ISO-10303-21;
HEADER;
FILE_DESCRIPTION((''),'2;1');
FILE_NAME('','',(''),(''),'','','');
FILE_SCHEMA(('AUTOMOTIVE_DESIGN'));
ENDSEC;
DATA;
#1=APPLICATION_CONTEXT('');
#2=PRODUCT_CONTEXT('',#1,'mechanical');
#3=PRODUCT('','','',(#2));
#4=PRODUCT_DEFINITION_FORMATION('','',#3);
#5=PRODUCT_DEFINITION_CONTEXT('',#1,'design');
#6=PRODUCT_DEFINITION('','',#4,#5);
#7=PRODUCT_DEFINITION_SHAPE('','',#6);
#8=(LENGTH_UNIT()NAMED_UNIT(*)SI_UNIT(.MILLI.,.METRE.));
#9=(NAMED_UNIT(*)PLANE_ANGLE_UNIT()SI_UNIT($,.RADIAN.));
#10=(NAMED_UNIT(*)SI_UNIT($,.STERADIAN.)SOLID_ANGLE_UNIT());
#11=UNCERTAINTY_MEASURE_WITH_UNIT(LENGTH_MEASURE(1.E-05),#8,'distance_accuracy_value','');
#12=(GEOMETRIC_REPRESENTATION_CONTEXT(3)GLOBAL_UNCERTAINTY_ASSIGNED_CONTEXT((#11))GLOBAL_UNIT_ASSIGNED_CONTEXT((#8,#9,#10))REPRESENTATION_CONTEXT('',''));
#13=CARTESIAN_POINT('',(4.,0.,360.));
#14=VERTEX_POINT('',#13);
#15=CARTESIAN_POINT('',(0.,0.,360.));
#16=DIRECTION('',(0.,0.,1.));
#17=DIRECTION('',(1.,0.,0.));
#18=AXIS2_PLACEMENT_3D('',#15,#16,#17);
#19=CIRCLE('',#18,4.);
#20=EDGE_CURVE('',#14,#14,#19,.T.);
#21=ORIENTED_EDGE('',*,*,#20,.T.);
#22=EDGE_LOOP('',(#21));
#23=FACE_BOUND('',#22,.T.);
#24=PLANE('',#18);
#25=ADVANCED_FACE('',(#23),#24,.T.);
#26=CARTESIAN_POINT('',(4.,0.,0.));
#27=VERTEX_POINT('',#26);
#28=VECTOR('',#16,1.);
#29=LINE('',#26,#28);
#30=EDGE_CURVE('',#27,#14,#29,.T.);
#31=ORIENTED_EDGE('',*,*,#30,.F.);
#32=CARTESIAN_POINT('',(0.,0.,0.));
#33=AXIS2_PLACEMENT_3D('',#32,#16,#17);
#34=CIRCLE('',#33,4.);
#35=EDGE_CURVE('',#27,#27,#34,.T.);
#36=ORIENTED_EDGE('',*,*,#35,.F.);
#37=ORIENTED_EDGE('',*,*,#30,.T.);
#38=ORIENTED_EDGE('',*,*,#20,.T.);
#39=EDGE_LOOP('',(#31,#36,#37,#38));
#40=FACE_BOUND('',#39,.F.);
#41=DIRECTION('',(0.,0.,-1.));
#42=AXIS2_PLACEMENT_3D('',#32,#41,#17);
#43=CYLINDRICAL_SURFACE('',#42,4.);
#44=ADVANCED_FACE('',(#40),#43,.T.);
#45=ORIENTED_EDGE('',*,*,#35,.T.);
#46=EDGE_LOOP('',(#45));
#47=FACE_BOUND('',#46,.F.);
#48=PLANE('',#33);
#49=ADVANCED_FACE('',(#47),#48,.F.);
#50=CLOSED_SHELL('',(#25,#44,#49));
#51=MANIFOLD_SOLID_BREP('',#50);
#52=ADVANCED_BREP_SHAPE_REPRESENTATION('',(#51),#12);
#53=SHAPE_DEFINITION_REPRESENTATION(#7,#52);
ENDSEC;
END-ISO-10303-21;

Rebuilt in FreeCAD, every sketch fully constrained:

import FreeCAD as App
import Part
import Sketcher

V = App.Vector

doc = App.newDocument("Part")
body = doc.addObject("PartDesign::Body", "Body")

# Sketch on XY plane
sketch1 = body.newObject("Sketcher::SketchObject", "Sketch")
sketch1.AttachmentSupport = (doc.getObject("XY_Plane"), [""])
sketch1.MapMode = "FlatFace"
sketch1.addGeometry(Part.Circle(V(0, 0, 0), V(0, 0, 1), 4), False)
sketch1.addConstraint(Sketcher.Constraint("Coincident", 0, 3, -1, 1))
sketch1.addConstraint(Sketcher.Constraint("Diameter", 0, 8.0))
pad1 = body.newObject("PartDesign::Pad", "Pad")
pad1.Profile = sketch1
pad1.Length = 360

doc.recompute()
